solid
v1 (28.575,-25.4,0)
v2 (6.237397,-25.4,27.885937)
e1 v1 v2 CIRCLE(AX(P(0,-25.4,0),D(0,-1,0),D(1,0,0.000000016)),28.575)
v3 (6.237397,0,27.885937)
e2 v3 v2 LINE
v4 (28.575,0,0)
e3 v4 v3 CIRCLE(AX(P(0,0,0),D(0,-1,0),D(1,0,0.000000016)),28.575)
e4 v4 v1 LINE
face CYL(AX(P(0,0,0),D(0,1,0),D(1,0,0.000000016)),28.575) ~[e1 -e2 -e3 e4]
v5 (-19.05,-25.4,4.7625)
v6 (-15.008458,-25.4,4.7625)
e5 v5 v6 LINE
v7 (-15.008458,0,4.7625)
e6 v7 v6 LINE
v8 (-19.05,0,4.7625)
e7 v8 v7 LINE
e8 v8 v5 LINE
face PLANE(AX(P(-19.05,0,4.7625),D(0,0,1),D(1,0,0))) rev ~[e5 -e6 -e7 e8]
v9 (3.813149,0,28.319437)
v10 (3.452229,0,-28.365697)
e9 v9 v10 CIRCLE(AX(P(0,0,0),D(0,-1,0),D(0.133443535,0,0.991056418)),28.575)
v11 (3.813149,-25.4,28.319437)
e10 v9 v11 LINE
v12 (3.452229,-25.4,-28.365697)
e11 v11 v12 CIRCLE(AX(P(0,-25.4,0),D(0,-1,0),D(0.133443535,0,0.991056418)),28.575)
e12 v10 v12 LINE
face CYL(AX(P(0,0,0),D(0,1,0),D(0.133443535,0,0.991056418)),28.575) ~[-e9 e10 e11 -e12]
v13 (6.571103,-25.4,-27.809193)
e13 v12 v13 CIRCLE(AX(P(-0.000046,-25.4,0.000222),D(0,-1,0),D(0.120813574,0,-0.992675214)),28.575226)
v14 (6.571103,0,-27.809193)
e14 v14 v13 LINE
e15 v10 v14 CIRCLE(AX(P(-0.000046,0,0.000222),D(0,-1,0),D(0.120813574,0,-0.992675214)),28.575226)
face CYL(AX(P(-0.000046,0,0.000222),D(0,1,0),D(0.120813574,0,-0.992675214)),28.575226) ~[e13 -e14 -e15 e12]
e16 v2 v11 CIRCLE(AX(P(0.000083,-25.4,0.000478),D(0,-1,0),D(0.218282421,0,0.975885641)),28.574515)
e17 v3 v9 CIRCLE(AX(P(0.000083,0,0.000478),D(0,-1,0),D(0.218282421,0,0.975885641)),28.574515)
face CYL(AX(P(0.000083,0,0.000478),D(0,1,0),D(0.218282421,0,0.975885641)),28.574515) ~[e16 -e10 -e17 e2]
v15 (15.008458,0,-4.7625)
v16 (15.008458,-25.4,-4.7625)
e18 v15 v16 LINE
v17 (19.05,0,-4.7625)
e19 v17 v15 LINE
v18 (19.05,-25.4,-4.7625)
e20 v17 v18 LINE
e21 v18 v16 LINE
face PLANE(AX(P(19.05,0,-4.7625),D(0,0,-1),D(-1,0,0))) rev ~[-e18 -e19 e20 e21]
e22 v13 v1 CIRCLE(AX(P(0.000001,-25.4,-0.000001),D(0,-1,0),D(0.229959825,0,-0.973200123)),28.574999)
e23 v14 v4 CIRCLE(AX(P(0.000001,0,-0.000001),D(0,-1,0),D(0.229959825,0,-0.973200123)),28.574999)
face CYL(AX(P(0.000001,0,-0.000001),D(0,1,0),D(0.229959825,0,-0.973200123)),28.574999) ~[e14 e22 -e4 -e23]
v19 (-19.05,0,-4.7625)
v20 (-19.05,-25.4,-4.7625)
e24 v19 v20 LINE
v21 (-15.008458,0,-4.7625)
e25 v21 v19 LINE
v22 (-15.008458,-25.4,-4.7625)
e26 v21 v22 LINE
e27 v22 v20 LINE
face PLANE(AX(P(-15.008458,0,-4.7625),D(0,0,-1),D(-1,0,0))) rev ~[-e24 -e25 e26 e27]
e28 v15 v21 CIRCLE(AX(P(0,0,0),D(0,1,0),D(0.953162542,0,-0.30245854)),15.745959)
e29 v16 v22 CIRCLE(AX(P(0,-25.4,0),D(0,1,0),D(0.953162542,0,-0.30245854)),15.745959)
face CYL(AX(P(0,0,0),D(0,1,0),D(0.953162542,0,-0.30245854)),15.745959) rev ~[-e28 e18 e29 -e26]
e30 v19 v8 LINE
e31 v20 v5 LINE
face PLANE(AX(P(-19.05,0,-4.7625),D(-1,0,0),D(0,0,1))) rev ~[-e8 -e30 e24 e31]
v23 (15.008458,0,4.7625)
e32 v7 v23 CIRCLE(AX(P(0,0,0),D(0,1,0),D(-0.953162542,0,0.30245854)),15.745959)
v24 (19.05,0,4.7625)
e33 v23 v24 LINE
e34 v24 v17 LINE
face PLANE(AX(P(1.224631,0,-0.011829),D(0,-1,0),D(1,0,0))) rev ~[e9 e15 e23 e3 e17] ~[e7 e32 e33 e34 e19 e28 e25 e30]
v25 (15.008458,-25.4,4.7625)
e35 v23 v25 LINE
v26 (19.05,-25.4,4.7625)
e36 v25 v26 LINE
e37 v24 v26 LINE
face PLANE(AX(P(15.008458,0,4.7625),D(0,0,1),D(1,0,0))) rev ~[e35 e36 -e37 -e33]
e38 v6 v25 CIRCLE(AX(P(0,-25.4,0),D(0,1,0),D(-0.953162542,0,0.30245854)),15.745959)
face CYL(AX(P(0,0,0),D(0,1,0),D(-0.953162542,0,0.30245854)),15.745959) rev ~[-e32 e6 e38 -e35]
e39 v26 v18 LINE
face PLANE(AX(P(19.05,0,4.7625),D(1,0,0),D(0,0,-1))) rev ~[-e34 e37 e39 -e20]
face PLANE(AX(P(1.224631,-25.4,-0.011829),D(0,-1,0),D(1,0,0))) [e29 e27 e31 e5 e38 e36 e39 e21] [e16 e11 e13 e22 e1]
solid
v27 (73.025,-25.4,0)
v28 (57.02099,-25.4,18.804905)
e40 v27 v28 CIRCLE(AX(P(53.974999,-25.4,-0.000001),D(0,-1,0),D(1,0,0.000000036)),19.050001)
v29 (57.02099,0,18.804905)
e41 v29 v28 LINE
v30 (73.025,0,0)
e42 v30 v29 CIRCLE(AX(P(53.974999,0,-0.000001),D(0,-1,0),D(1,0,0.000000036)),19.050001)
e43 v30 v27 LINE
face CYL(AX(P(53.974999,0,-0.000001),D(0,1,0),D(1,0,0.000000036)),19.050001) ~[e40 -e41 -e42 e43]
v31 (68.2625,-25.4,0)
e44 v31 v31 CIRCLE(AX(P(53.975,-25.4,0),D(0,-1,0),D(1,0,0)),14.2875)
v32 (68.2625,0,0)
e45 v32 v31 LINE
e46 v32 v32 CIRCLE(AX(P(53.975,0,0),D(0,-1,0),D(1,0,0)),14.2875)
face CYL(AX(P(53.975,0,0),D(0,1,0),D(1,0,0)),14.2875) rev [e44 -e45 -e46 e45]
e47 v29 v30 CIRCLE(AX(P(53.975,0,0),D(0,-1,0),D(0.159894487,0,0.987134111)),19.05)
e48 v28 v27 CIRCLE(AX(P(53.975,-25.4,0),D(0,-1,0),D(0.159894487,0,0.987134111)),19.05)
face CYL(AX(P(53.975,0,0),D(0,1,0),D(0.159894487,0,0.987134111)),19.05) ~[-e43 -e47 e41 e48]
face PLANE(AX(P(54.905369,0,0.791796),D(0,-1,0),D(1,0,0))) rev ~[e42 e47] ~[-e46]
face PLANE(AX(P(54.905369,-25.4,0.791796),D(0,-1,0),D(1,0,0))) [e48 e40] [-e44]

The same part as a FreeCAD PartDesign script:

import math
import FreeCAD as App
import Part
import Sketcher
Q = App.Units.Quantity

doc = App.newDocument("Part")
body = doc.addObject("PartDesign::Body", "Body")
body.AllowCompound = True

# Sketch on XZ plane
sketch1 = body.newObject("Sketcher::SketchObject", "Sketch")
sketch1.AttachmentSupport = (doc.getObject("XZ_Plane"), [""])
sketch1.MapMode = "FlatFace"
sketch1.addGeometry([
    Part.ArcOfCircle(Part.Circle(App.Vector(0, 0, 0), App.Vector(0, 0, 1), 28.575), math.radians(0.000001), math.radians(77.391876)),  # 0
    Part.ArcOfCircle(Part.Circle(App.Vector(0.000083, 0.000478, 0), App.Vector(0, 0, 1), 28.574515), math.radians(77.391829), math.radians(82.33141)),  # 1
    Part.ArcOfCircle(Part.Circle(App.Vector(0, 0, 0), App.Vector(0, 0, 1), 28.575), math.radians(82.331373), math.radians(276.93902)),  # 2
    Part.ArcOfCircle(Part.Circle(App.Vector(-0.000046, 0.000222, 0), App.Vector(0, 0, 1), 28.575226), math.radians(-83.060941), math.radians(-76.705303)),  # 3
    Part.ArcOfCircle(Part.Circle(App.Vector(0.000001, -0.000001, 0), App.Vector(0, 0, 1), 28.574999), math.radians(-76.705294), math.radians(0.000002)),  # 4
    Part.LineSegment(App.Vector(-19.05, 4.7625, 0), App.Vector(-15.008458, 4.7625, 0)),  # 5
    Part.ArcOfCircle(Part.Circle(App.Vector(0, 0, 0), App.Vector(0, 0, 1), 15.745959), math.radians(17.605329), math.radians(162.394671)),  # 6
    Part.LineSegment(App.Vector(15.008458, 4.7625, 0), App.Vector(19.05, 4.7625, 0)),  # 7
    Part.LineSegment(App.Vector(19.05, 4.7625, 0), App.Vector(19.05, -4.7625, 0)),  # 8
    Part.LineSegment(App.Vector(19.05, -4.7625, 0), App.Vector(15.008458, -4.7625, 0)),  # 9
    Part.ArcOfCircle(Part.Circle(App.Vector(0, 0, 0), App.Vector(0, 0, 1), 15.745959), math.radians(-162.394671), math.radians(-17.605329)),  # 10
    Part.LineSegment(App.Vector(-15.008458, -4.7625, 0), App.Vector(-19.05, -4.7625, 0)),  # 11
    Part.LineSegment(App.Vector(-19.05, -4.7625, 0), App.Vector(-19.05, 4.7625, 0)),  # 12
    Part.ArcOfCircle(Part.Circle(App.Vector(53.974999, -0.000001, 0), App.Vector(0, 0, 1), 19.050001), math.radians(0.000002), math.radians(80.799225)),  # 13
    Part.ArcOfCircle(Part.Circle(App.Vector(53.975, 0, 0), App.Vector(0, 0, 1), 19.05), math.radians(80.799228), math.radians(359.999999)),  # 14
    Part.Circle(App.Vector(53.975, 0, 0), App.Vector(0, 0, 1), 14.2875),  # 15
], False)
sketch1.addConstraint([
    Sketcher.Constraint("Coincident", 0, 2, 1, 1),
    Sketcher.Constraint("Coincident", 1, 2, 2, 1),
    Sketcher.Constraint("Coincident", 2, 2, 3, 1),
    Sketcher.Constraint("Coincident", 3, 2, 4, 1),
    Sketcher.Constraint("Coincident", 4, 2, 0, 1),
    Sketcher.Constraint("Coincident", 5, 2, 6, 2),
    Sketcher.Constraint("Coincident", 6, 1, 7, 1),
    Sketcher.Constraint("Coincident", 7, 2, 8, 1),
    Sketcher.Constraint("Coincident", 8, 2, 9, 1),
    Sketcher.Constraint("Coincident", 9, 2, 10, 2),
    Sketcher.Constraint("Coincident", 10, 1, 11, 1),
    Sketcher.Constraint("Coincident", 11, 2, 12, 1),
    Sketcher.Constraint("Coincident", 12, 2, 5, 1),
    Sketcher.Constraint("Coincident", 13, 1, 14, 2),
    Sketcher.Constraint("Coincident", 14, 1, 13, 2),
    Sketcher.Constraint("Horizontal", 5),
    Sketcher.Constraint("Horizontal", 7),
    Sketcher.Constraint("Vertical", 8),
    Sketcher.Constraint("Horizontal", 9),
    Sketcher.Constraint("Horizontal", 11),
    Sketcher.Constraint("Vertical", 12),
    Sketcher.Constraint("Coincident", 0, 3, -1, 1),
    Sketcher.Constraint("Coincident", 2, 3, -1, 1),
    Sketcher.Constraint("Coincident", 4, 3, -1, 1),
    Sketcher.Constraint("Coincident", 6, 3, -1, 1),
    Sketcher.Constraint("Coincident", 10, 3, -1, 1),
    Sketcher.Constraint("Coincident", 15, 3, 13, 3),
    Sketcher.Constraint("PointOnObject", 13, 3, -1),
    Sketcher.Constraint("PointOnObject", 14, 3, -1),
    Sketcher.Constraint("PointOnObject", 4, 2, -1),
    Sketcher.Constraint("PointOnObject", 13, 1, -1),
    Sketcher.Constraint("Radius", 13, Q("0.75 in")),
    Sketcher.Constraint("Diameter", 15, Q("1.125 in")),
    Sketcher.Constraint("Radius", 0, Q("1.125 in")),
    Sketcher.Constraint("Radius", 2, Q("1.125 in")),
    Sketcher.Constraint("DistanceX", 4, 2, 13, 3, Q("1 in")),
    Sketcher.Constraint("DistanceY", 8, 2, 8, 1, Q("0.375 in")),
    Sketcher.Constraint("DistanceY", 12, 1, 12, 2, Q("0.375 in")),
    Sketcher.Constraint("DistanceX", -1, 1, 7, 2, Q("0.75 in")),
    Sketcher.Constraint("DistanceX", 11, 2, -1, 1, Q("0.75 in")),
    Sketcher.Constraint("DistanceY", -1, 1, 5, 2, Q("0.1875 in")),
    Sketcher.Constraint("DistanceY", -1, 1, 6, 1, Q("0.1875 in")),
    Sketcher.Constraint("Radius", 6, 15.745959),
    Sketcher.Constraint("Radius", 10, 15.745959),
    Sketcher.Constraint("Radius", 1, 28.574515),
    Sketcher.Constraint("Radius", 3, 28.575226),
    Sketcher.Constraint("DistanceY", 0, 2, 1, 2, 0.4335),
    Sketcher.Constraint("DistanceX", 4, 3, 3, 2, 6.571102),
    Sketcher.Constraint("DistanceX", -1, 1, 1, 2, 3.813149),
    Sketcher.Constraint("DistanceX", -1, 1, 2, 2, 3.452229),
    Sketcher.Constraint("DistanceX", -1, 1, 14, 1, 57.02099),
])
pad1 = body.newObject("PartDesign::Pad", "Pad")
pad1.Profile = sketch1
pad1.Length = Q("1 in")

doc.recompute()
